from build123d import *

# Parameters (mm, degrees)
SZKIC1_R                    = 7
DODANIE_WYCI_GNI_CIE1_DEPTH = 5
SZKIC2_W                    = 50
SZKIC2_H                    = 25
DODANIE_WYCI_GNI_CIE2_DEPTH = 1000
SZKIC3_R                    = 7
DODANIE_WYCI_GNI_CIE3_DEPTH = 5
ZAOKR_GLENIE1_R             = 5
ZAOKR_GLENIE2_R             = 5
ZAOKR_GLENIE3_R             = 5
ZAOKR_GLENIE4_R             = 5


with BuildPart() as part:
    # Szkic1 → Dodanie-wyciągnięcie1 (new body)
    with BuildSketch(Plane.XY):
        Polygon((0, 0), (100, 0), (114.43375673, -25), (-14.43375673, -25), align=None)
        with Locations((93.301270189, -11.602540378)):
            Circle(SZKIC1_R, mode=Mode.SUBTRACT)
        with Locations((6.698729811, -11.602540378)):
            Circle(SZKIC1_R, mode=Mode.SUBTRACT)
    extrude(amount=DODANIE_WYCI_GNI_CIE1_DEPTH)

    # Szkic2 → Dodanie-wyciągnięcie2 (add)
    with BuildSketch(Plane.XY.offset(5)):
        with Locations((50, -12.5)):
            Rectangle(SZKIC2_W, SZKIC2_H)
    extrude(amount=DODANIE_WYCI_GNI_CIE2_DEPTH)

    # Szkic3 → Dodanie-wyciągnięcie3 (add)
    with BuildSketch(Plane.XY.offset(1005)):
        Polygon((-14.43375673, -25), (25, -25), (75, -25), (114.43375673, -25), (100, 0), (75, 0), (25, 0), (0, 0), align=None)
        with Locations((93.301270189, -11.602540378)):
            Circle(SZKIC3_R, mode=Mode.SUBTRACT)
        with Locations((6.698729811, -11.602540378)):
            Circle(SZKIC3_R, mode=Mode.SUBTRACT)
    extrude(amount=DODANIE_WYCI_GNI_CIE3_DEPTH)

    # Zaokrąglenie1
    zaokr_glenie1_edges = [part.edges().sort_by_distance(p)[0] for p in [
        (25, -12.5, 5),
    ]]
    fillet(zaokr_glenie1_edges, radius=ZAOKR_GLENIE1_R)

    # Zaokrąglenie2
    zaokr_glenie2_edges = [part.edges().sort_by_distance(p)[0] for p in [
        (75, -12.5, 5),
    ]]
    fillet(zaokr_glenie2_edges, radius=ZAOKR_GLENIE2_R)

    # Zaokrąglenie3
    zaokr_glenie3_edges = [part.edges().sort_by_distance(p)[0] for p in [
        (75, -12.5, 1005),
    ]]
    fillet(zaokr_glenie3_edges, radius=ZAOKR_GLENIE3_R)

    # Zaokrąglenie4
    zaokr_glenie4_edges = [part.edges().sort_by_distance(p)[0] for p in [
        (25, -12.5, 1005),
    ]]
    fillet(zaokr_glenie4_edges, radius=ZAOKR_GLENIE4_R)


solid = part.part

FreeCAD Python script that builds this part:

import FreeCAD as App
import Part
import Sketcher
from FreeCAD import Vector
Q = App.Units.Quantity


def edges_at(feature, points):
    """Names of the edges that pass closest to the given points."""
    edges = feature.Shape.Edges
    near = lambda p: min(range(len(edges)), key=lambda i: edges[i].distToShape(Part.Vertex(*p))[0])
    return sorted({f"Edge{near(p) + 1}" for p in points})

doc = App.newDocument("Part")
body = doc.addObject("PartDesign::Body", "Body")

sketch1 = doc.addObject("Sketcher::SketchObject", "Sketch")
body.addObject(sketch1)
sketch1.AttachmentSupport = (doc.XY_Plane, [""])
sketch1.MapMode = "FlatFace"
sketch1.addGeometry([
    Part.LineSegment(Vector(100, 0, 0), Vector(0, 0, 0)),
    Part.LineSegment(Vector(0, 0, 0), Vector(-14.433757, -25, 0)),
    Part.LineSegment(Vector(-14.433757, -25, 0), Vector(114.433757, -25, 0)),
    Part.LineSegment(Vector(114.433757, -25, 0), Vector(100, 0, 0)),
    Part.Circle(Vector(93.30127, -11.60254, 0), Vector(0, 0, 1), 7),
    Part.Circle(Vector(6.69873, -11.60254, 0), Vector(0, 0, 1), 7),
], False)
sketch1.addConstraint([
    Sketcher.Constraint("Coincident", 0, 2, 1, 1),
    Sketcher.Constraint("Coincident", 1, 2, 2, 1),
    Sketcher.Constraint("Coincident", 2, 2, 3, 1),
    Sketcher.Constraint("Coincident", 3, 2, 0, 1),
    Sketcher.Constraint("Horizontal", 0),
    Sketcher.Constraint("Horizontal", 2),
    Sketcher.Constraint("Coincident", 0, 2, -1, 1),
    Sketcher.Constraint("Equal", 4, 5),
    Sketcher.Constraint("Horizontal", 4, 3, 5, 3),
    Sketcher.Constraint("Equal", 1, 3),
    Sketcher.Constraint("Diameter", 4, Q("14 mm")),
    Sketcher.Constraint("DistanceX", 0, 2, 0, 1, Q("100 mm")),
    Sketcher.Constraint("Angle", 1, Q("-120 deg")),
    Sketcher.Constraint("DistanceY", 1, 2, -1, 1, Q("25 mm")),
    Sketcher.Constraint("DistanceX", -1, 1, 4, 3, Q("93.30127 mm")),
    Sketcher.Constraint("DistanceY", 4, 3, -1, 1, Q("11.60254 mm")),
    Sketcher.Constraint("DistanceX", -1, 1, 5, 3, Q("6.69873 mm")),
])
pad1 = doc.addObject("PartDesign::Pad", "Pad")
body.addObject(pad1)
pad1.Profile = sketch1
pad1.Length = 5

sketch2 = doc.addObject("Sketcher::SketchObject", "Sketch001")
body.addObject(sketch2)
sketch2.AttachmentSupport = (doc.XY_Plane, [""])
sketch2.MapMode = "FlatFace"
sketch2.AttachmentOffset = App.Placement(Vector(0, 0, 5), App.Rotation())
sketch2.addGeometry([
    Part.LineSegment(Vector(25, 0, 0), Vector(25, -25, 0)),
    Part.LineSegment(Vector(25, -25, 0), Vector(75, -25, 0)),
    Part.LineSegment(Vector(75, -25, 0), Vector(75, 0, 0)),
    Part.LineSegment(Vector(75, 0, 0), Vector(25, 0, 0)),
], False)
sketch2.addConstraint([
    Sketcher.Constraint("Coincident", 0, 2, 1, 1),
    Sketcher.Constraint("Coincident", 1, 2, 2, 1),
    Sketcher.Constraint("Coincident", 2, 2, 3, 1),
    Sketcher.Constraint("Coincident", 3, 2, 0, 1),
    Sketcher.Constraint("Vertical", 0),
    Sketcher.Constraint("Horizontal", 1),
    Sketcher.Constraint("Vertical", 2),
    Sketcher.Constraint("Horizontal", 3),
    Sketcher.Constraint("PointOnObject", 2, 2, -1),
    Sketcher.Constraint("DistanceX", 1, 1, 1, 2, Q("50 mm")),
    Sketcher.Constraint("DistanceY", 0, 2, 0, 1, Q("25 mm")),
    Sketcher.Constraint("DistanceX", -1, 1, 0, 2, Q("25 mm")),
])
pad2 = doc.addObject("PartDesign::Pad", "Pad001")
body.addObject(pad2)
pad2.Profile = sketch2
pad2.Length = 1000

sketch3 = doc.addObject("Sketcher::SketchObject", "Sketch002")
body.addObject(sketch3)
sketch3.AttachmentSupport = (doc.XY_Plane, [""])
sketch3.MapMode = "FlatFace"
sketch3.AttachmentOffset = App.Placement(Vector(0, 0, 1005), App.Rotation())
sketch3.addGeometry([
    Part.LineSegment(Vector(-14.433757, -25, 0), Vector(114.433757, -25, 0)),
    Part.LineSegment(Vector(114.433757, -25, 0), Vector(100, 0, 0)),
    Part.LineSegment(Vector(100, 0, 0), Vector(0, 0, 0)),
    Part.LineSegment(Vector(0, 0, 0), Vector(-14.433757, -25, 0)),
    Part.Circle(Vector(6.69873, -11.60254, 0), Vector(0, 0, 1), 7),
    Part.Circle(Vector(93.30127, -11.60254, 0), Vector(0, 0, 1), 7),
], False)
sketch3.addConstraint([
    Sketcher.Constraint("Coincident", 0, 2, 1, 1),
    Sketcher.Constraint("Coincident", 1, 2, 2, 1),
    Sketcher.Constraint("Coincident", 2, 2, 3, 1),
    Sketcher.Constraint("Coincident", 3, 2, 0, 1),
    Sketcher.Constraint("Horizontal", 0),
    Sketcher.Constraint("Horizontal", 2),
    Sketcher.Constraint("Coincident", 2, 2, -1, 1),
    Sketcher.Constraint("Equal", 4, 5),
    Sketcher.Constraint("Horizontal", 4, 3, 5, 3),
    Sketcher.Constraint("Equal", 1, 3),
    Sketcher.Constraint("Diameter", 4, Q("14 mm")),
    Sketcher.Constraint("DistanceX", 2, 2, 2, 1, Q("100 mm")),
    Sketcher.Constraint("Angle", 1, Q("120 deg")),
    Sketcher.Constraint("DistanceY", 0, 2, -1, 1, Q("25 mm")),
    Sketcher.Constraint("DistanceX", -1, 1, 4, 3, Q("6.69873 mm")),
    Sketcher.Constraint("DistanceY", 4, 3, -1, 1, Q("11.60254 mm")),
    Sketcher.Constraint("DistanceX", -1, 1, 5, 3, Q("93.30127 mm")),
])
pad3 = doc.addObject("PartDesign::Pad", "Pad002")
body.addObject(pad3)
pad3.Profile = sketch3
pad3.Length = 5
doc.recompute()

fillet = doc.addObject("PartDesign::Fillet", "Fillet")
body.addObject(fillet)
fillet.Base = (pad3, edges_at(pad3, [(25, -12.5, 5)]))
fillet.Radius = 5
doc.recompute()

fillet2 = doc.addObject("PartDesign::Fillet", "Fillet001")
body.addObject(fillet2)
fillet2.Base = (fillet, edges_at(fillet, [(75, -12.5, 5)]))
fillet2.Radius = 5
doc.recompute()

fillet3 = doc.addObject("PartDesign::Fillet", "Fillet002")
body.addObject(fillet3)
fillet3.Base = (fillet2, edges_at(fillet2, [(75, -12.5, 1005)]))
fillet3.Radius = 5
doc.recompute()

fillet4 = doc.addObject("PartDesign::Fillet", "Fillet003")
body.addObject(fillet4)
fillet4.Base = (fillet3, edges_at(fillet3, [(25, -12.5, 1005)]))
fillet4.Radius = 5

doc.recompute()
